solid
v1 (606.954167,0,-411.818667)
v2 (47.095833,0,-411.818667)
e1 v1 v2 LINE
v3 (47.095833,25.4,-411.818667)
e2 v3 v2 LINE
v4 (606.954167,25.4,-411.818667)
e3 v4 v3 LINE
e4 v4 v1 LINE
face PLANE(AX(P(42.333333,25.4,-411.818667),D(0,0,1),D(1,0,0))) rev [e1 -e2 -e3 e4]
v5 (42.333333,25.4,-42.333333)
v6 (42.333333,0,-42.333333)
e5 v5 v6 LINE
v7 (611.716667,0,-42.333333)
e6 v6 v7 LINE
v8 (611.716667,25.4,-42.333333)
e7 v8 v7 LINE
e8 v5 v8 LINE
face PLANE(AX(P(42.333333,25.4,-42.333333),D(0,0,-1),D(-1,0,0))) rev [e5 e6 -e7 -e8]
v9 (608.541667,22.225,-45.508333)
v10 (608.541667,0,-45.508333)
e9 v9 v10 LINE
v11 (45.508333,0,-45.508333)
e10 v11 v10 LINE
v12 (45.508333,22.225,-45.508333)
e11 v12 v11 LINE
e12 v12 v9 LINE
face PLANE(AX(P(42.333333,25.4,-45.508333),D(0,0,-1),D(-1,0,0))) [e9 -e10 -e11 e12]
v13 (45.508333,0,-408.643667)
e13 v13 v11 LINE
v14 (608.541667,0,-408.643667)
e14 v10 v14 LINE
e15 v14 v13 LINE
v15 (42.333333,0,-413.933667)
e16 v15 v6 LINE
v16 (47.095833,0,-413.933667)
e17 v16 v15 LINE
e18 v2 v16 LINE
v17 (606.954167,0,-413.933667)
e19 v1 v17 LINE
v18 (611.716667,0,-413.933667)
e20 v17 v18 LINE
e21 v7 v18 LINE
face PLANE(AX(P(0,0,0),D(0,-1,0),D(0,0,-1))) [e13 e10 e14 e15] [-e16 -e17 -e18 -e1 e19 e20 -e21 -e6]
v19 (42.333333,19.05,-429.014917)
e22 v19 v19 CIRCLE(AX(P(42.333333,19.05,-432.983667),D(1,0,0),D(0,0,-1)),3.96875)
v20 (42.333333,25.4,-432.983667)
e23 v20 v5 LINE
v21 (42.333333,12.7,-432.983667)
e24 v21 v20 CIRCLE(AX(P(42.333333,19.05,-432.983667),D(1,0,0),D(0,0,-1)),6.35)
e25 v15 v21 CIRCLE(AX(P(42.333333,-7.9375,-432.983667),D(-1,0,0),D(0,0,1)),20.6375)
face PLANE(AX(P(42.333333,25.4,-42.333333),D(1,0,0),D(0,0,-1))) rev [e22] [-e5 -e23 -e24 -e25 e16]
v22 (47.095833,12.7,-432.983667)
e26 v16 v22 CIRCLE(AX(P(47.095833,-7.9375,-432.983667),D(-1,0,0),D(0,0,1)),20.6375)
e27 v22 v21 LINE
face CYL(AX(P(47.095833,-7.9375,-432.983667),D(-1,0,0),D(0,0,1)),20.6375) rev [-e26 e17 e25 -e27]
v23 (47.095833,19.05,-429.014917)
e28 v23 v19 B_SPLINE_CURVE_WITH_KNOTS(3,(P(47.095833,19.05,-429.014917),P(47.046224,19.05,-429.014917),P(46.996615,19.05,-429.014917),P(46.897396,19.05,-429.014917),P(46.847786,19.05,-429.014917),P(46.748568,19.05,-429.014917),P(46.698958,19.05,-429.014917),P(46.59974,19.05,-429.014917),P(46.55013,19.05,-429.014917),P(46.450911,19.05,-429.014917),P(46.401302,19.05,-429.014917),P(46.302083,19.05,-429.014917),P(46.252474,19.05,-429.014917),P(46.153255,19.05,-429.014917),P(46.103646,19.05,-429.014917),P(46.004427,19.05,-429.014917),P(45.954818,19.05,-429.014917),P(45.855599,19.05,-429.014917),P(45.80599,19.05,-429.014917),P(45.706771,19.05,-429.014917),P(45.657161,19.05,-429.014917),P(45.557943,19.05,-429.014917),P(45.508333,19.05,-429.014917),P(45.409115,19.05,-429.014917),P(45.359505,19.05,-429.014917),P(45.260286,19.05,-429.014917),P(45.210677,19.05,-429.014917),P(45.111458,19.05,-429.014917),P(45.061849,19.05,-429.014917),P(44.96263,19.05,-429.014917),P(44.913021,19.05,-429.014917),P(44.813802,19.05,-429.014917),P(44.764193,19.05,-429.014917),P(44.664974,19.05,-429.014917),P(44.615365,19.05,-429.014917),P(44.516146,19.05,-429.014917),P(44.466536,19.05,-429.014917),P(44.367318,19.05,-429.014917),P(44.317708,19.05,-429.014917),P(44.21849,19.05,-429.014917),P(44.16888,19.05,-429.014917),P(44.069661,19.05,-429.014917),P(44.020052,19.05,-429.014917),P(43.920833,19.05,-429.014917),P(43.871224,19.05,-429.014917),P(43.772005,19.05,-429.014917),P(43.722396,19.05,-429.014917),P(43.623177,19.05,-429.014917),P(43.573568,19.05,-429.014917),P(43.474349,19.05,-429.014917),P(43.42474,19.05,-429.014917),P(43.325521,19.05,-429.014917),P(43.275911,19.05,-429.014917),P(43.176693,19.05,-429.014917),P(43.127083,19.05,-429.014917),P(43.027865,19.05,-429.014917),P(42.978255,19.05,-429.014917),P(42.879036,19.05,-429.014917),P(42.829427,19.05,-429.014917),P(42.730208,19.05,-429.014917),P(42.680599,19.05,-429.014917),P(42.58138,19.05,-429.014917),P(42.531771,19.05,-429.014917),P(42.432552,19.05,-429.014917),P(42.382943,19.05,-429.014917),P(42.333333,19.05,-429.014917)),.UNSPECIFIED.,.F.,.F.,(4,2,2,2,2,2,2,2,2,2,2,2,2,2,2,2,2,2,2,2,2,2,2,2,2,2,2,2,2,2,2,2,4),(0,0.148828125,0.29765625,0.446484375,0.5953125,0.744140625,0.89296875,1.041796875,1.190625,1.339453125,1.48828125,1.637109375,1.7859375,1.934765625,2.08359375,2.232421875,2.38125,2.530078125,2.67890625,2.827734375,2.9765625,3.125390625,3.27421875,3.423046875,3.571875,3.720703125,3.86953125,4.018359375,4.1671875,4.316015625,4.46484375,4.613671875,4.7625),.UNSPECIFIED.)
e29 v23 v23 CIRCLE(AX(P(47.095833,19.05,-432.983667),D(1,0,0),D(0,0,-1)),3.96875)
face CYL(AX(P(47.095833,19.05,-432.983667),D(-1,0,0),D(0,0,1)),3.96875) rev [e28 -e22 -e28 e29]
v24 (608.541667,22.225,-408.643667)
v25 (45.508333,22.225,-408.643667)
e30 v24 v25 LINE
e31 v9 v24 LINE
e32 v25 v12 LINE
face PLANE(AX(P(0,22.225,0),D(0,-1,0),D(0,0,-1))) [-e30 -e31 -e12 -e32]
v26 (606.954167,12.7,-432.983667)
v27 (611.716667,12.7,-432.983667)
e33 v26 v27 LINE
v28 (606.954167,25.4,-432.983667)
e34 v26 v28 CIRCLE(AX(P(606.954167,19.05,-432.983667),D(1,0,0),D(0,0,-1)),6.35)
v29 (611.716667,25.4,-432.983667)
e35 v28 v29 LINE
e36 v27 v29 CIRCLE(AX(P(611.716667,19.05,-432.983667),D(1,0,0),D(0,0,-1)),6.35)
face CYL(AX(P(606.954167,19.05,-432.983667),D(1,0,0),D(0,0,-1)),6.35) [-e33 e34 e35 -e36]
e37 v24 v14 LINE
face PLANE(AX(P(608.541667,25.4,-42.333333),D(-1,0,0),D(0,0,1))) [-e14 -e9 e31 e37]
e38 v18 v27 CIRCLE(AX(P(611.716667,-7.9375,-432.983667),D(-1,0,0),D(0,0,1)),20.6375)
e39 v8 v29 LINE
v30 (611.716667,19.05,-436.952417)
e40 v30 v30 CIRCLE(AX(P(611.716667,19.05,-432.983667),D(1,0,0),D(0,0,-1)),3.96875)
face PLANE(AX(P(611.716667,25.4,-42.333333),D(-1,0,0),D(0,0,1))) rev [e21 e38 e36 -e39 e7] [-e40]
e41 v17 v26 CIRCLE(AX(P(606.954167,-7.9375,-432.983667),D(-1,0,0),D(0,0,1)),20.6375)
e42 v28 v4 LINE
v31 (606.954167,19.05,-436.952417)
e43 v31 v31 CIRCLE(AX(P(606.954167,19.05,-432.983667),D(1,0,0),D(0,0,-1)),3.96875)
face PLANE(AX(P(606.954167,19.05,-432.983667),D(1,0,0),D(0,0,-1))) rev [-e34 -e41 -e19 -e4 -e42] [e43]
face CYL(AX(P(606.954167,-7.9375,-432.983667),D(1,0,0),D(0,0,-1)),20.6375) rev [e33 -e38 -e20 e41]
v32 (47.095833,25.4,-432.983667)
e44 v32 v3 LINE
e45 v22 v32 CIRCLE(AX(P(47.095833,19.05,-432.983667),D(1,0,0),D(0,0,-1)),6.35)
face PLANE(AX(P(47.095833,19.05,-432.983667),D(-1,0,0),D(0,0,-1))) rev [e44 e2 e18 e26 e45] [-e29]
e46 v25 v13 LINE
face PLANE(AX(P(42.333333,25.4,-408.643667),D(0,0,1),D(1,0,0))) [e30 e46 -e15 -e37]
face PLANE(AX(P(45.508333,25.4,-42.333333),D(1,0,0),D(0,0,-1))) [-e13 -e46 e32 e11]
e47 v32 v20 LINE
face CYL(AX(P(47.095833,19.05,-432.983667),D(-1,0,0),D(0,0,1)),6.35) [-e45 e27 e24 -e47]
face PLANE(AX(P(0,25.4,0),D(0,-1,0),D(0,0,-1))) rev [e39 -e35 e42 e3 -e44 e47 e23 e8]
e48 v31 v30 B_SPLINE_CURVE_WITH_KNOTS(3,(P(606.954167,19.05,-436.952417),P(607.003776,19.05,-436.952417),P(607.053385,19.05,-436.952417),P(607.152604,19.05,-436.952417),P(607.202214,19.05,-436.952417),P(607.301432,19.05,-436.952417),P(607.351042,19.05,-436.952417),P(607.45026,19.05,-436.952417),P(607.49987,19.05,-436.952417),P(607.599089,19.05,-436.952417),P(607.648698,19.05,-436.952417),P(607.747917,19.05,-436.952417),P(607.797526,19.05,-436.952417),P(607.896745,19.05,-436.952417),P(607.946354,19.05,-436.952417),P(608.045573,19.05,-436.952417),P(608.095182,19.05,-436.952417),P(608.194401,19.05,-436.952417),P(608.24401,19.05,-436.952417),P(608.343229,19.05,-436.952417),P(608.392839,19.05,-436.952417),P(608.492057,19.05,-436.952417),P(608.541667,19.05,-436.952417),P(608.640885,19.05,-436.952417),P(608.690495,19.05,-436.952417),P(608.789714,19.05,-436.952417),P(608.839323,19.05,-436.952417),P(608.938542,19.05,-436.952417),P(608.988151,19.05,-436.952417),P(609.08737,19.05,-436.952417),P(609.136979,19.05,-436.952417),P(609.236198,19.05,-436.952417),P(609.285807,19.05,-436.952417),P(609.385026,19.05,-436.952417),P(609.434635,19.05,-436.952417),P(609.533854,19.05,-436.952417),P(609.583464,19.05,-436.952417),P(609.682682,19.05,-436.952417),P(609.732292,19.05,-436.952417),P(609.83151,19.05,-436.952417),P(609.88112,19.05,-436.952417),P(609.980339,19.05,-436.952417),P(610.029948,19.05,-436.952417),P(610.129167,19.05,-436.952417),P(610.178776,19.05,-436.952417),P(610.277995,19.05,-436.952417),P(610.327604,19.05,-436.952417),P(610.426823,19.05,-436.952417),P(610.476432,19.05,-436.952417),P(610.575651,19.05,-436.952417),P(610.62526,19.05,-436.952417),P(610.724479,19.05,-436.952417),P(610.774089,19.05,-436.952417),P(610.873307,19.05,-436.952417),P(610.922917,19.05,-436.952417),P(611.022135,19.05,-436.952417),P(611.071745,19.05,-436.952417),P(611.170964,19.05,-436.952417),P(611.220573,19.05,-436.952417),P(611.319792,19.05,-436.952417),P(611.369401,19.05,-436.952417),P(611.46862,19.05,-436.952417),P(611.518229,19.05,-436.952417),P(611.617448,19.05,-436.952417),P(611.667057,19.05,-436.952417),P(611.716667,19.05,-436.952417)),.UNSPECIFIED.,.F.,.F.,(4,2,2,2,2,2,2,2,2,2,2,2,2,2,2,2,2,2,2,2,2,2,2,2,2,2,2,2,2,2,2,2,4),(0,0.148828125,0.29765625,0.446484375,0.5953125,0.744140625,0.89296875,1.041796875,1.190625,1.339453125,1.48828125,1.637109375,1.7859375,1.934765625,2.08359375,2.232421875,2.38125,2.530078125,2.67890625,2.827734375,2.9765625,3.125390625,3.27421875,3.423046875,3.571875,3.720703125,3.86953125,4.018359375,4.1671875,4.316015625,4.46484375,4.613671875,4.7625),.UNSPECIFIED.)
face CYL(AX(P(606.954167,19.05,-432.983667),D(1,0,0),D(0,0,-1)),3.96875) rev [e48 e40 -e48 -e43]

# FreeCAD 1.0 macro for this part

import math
import FreeCAD as App
import Part
import Sketcher
from FreeCAD import Vector
Q = App.Units.Quantity


def faces_at(feature, points):
    """Names of the faces that lie closest to the given points."""
    faces = feature.Shape.Faces
    near = lambda p: min(range(len(faces)), key=lambda i: faces[i].distToShape(Part.Vertex(*p))[0])
    return sorted({f"Face{near(p) + 1}" for p in points})


def add_polygon(sketch, points):
    """Adds a closed chain of lines whose ends are joined by coincident constraints."""
    first, n = sketch.GeometryCount, len(points)
    for a, b in zip(points, points[1:] + points[:1]):
        sketch.addGeometry(Part.LineSegment(App.Vector(*a, 0), App.Vector(*b, 0)), False)
    for i in range(n):
        sketch.addConstraint(Sketcher.Constraint("Coincident", first + i, 2, first + (i + 1) % n, 1))

doc = App.newDocument("Part")
body = doc.addObject("PartDesign::Body", "Body")

sketch1 = doc.addObject("Sketcher::SketchObject", "Sketch")
body.addObject(sketch1)
sketch1.AttachmentSupport = (doc.XZ_Plane, [""])
sketch1.MapMode = "FlatFace"
add_polygon(sketch1, [(42, -412), (42, -42), (612, -42), (612, -412)])
sketch1.addConstraint([
    Sketcher.Constraint("Vertical", 0),
    Sketcher.Constraint("Horizontal", 1),
    Sketcher.Constraint("Vertical", 2),
    Sketcher.Constraint("Horizontal", 3),
    Sketcher.Constraint("DistanceX", 1, 1, 1, 2, Q("569.383333 mm")),
    Sketcher.Constraint("DistanceY", 0, 1, 0, 2, Q("369.485333 mm")),
    Sketcher.Constraint("DistanceX", -1, 1, 0, 2, Q("42.333333 mm")),
    Sketcher.Constraint("DistanceY", 0, 2, -1, 1, Q("42.333333 mm")),
])
pad1 = doc.addObject("PartDesign::Pad", "Pad")
body.addObject(pad1)
pad1.Profile = sketch1
pad1.Length = Q("1 in")
pad1.Reversed = True
doc.recompute()

thickness = doc.addObject("PartDesign::Thickness", "Thickness")
body.addObject(thickness)
thickness.Base = (pad1, faces_at(pad1, [(327.025, 0, -227.076)]))
thickness.Value = Q("0.125 in")
thickness.Reversed = True
thickness.Join = "Intersection"

sketch2 = doc.addObject("Sketcher::SketchObject", "Sketch001")
body.addObject(sketch2)
sketch2.AttachmentSupport = (doc.YZ_Plane, [""])
sketch2.MapMode = "FlatFace"
sketch2.AttachmentOffset = App.Placement(Vector(0, 0, 611.716667), App.Rotation())
sketch2.addGeometry([
    Part.LineSegment(Vector(25.4, -411.8, 0), Vector(0, -411.8, 0)),
    Part.LineSegment(Vector(0, -411.8, 0), Vector(0, -413.9, 0)),
    Part.ArcOfCircle(Part.Circle(Vector(-7.9, -433, 0), Vector(0, 0, 1), 20.6), math.radians(0), math.radians(67)),
    Part.ArcOfCircle(Part.Circle(Vector(19.1, -433, 0), Vector(0, 0, 1), 6.3), math.radians(180), math.radians(360)),
    Part.LineSegment(Vector(25.4, -433, 0), Vector(25.4, -411.8, 0)),
    Part.Circle(Vector(19.1, -433, 0), Vector(0, 0, 1), 4),
], False)
sketch2.addConstraint([
    Sketcher.Constraint("Coincident", 0, 2, 1, 1),
    Sketcher.Constraint("Coincident", 1, 2, 2, 2),
    Sketcher.Constraint("Tangent", 2, 1, 3, 1),
    Sketcher.Constraint("Tangent", 3, 2, 4, 1),
    Sketcher.Constraint("Coincident", 4, 2, 0, 1),
    Sketcher.Constraint("Horizontal", 0),
    Sketcher.Constraint("Vertical", 1),
    Sketcher.Constraint("Vertical", 4),
    Sketcher.Constraint("Coincident", 5, 3, 3, 3),
    Sketcher.Constraint("PointOnObject", 0, 2, -2),
    Sketcher.Constraint("Horizontal", 2, 3, 3, 3),
    Sketcher.Constraint("DistanceX", 0, 2, 0, 1, Q("1 in")),
    Sketcher.Constraint("Radius", 3, Q("0.25 in")),
    Sketcher.Constraint("Diameter", 5, Q("0.3125 in")),
    Sketcher.Constraint("Radius", 2, Q("0.8125 in")),
    Sketcher.Constraint("DistanceY", 1, 2, 1, 1, Q("2.115 mm")),
    Sketcher.Constraint("DistanceY", 2, 3, -1, 1, Q("432.983667 mm")),
])
pad2 = doc.addObject("PartDesign::Pad", "Pad001")
body.addObject(pad2)
pad2.Profile = sketch2
pad2.Length = Q("0.1875 in")
pad2.Reversed = True
doc.recompute()

datumplane = doc.addObject("PartDesign::Plane", "DatumPlane")
body.addObject(datumplane)
datumplane.AttachmentSupport = (doc.YZ_Plane, [""])
datumplane.MapMode = "FlatFace"
datumplane.AttachmentOffset = App.Placement(Vector(0, 0, 12.875 * 25.4), App.Rotation())
mirrored = doc.addObject("PartDesign::Mirrored", "Mirrored")
body.addObject(mirrored)
mirrored.Originals = [pad2]
mirrored.MirrorPlane = (datumplane, [""])
body.Tip = mirrored

doc.recompute()
